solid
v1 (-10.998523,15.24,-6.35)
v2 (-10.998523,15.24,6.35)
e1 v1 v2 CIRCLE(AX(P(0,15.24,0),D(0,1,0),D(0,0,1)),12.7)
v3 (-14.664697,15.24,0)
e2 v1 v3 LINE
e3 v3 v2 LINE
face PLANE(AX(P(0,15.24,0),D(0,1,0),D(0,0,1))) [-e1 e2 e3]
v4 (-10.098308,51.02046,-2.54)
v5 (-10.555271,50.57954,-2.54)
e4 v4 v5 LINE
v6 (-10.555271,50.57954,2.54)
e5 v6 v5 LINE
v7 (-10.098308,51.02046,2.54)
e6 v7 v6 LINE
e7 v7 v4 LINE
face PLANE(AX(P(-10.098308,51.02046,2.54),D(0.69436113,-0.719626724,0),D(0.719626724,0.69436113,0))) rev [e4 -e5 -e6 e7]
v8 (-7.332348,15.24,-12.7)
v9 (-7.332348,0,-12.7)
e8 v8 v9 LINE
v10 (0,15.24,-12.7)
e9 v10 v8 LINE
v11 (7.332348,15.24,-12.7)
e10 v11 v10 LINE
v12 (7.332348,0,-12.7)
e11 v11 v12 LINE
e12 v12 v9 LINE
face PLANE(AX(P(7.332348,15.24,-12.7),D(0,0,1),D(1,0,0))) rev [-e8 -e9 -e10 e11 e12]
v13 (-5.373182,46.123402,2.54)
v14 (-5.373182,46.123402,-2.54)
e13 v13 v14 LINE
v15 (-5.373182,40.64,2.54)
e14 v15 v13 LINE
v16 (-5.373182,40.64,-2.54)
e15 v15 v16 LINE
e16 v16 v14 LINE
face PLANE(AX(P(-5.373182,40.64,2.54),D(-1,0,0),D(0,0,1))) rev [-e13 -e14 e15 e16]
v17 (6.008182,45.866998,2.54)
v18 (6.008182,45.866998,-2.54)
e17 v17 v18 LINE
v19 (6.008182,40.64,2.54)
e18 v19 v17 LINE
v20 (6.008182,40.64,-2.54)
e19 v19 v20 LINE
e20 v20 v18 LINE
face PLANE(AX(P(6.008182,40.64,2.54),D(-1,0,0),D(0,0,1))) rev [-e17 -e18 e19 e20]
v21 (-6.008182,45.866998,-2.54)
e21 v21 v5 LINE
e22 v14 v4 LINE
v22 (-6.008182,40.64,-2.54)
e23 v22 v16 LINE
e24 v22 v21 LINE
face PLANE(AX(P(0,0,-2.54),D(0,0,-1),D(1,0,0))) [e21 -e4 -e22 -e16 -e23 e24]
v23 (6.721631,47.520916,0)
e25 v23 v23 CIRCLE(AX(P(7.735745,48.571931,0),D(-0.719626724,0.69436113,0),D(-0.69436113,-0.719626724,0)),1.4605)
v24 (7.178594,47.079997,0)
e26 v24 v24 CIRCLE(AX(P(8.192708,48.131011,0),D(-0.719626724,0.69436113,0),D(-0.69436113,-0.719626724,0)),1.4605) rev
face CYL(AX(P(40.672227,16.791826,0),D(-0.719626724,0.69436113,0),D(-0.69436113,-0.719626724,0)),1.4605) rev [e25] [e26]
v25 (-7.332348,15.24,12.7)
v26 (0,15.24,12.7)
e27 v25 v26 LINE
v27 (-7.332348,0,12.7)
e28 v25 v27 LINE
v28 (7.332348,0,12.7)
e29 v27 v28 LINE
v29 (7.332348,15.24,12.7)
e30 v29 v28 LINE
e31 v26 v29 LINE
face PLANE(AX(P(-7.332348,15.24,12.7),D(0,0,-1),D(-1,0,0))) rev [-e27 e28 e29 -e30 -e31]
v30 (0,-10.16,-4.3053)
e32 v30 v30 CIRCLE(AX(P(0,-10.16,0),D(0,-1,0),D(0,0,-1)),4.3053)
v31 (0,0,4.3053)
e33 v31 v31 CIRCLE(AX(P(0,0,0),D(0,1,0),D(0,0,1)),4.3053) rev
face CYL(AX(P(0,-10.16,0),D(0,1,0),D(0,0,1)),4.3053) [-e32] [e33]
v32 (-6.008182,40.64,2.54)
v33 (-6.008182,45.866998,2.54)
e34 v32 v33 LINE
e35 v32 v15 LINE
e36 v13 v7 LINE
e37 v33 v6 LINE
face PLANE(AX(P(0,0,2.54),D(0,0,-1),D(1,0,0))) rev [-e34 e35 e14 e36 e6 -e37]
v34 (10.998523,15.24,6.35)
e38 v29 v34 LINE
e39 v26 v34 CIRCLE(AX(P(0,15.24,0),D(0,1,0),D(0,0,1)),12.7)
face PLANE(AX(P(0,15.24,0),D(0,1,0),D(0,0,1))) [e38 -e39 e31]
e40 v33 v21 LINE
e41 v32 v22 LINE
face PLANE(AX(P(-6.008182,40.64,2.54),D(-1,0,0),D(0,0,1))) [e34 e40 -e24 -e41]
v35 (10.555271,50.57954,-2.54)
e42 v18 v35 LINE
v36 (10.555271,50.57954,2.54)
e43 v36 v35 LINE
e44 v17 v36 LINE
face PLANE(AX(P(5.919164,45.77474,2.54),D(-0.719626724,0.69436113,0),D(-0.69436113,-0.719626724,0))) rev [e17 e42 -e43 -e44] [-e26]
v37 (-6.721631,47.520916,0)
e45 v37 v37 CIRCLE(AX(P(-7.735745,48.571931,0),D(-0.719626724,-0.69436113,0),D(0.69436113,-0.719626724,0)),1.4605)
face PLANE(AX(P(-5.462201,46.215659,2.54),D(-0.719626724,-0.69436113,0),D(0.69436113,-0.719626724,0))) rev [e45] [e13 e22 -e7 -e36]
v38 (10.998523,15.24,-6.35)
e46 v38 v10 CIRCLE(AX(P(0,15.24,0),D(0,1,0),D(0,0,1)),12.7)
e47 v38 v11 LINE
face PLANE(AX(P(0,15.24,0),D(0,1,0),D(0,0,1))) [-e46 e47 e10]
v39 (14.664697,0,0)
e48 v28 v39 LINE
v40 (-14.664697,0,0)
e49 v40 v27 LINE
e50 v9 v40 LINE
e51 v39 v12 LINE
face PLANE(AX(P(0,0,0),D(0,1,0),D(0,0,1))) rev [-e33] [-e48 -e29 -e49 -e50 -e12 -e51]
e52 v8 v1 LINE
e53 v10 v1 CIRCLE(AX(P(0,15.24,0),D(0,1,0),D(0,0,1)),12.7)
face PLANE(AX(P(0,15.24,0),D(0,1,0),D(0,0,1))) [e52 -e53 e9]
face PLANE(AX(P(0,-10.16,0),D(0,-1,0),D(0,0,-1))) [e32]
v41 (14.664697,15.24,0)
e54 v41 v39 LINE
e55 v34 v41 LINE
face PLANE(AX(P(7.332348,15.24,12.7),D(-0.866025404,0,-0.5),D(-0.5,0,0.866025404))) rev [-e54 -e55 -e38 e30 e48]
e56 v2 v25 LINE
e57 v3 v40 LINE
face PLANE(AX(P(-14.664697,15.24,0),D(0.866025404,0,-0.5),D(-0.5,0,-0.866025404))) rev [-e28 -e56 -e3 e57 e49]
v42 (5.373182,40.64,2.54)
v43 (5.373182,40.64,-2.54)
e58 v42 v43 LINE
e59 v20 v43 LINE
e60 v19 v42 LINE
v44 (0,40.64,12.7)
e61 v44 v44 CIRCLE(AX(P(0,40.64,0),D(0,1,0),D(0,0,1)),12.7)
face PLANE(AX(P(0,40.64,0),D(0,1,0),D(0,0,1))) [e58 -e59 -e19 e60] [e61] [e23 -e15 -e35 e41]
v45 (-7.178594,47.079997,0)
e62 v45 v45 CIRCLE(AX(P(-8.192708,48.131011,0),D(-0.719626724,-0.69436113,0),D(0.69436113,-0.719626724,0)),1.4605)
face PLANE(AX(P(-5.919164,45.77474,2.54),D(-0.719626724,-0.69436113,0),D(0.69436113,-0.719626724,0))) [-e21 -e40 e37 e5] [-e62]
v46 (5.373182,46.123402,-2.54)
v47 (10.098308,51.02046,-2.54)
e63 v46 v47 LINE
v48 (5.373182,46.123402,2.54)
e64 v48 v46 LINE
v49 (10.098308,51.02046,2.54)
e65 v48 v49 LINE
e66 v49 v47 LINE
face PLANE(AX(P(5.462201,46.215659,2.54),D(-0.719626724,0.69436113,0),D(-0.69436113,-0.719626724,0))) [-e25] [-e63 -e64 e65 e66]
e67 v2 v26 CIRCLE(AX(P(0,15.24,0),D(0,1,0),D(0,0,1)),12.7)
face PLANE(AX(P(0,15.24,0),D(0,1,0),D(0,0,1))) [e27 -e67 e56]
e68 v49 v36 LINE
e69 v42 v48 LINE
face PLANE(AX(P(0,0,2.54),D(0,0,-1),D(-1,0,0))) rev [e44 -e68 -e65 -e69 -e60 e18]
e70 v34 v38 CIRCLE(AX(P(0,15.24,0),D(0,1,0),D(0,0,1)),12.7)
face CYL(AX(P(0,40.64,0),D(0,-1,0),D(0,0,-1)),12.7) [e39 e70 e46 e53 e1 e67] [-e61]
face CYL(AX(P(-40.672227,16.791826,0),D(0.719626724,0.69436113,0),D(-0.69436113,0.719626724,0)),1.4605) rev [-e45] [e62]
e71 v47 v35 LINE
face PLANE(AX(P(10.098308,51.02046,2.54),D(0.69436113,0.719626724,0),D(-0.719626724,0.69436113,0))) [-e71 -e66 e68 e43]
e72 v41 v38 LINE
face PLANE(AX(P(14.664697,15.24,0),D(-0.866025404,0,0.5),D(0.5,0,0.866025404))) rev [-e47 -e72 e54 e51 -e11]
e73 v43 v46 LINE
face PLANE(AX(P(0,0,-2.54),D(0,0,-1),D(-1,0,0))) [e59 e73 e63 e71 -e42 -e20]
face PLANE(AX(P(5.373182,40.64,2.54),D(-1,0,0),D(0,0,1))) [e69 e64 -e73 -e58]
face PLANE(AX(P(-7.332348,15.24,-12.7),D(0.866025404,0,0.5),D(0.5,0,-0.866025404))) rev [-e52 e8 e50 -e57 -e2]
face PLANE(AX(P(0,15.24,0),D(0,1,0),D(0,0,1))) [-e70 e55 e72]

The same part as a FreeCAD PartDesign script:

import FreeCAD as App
import Part
import Sketcher
from FreeCAD import Vector
Q = App.Units.Quantity


def add_polygon(sketch, points):
    """Adds a closed chain of lines whose ends are joined by coincident constraints."""
    first, n = sketch.GeometryCount, len(points)
    for a, b in zip(points, points[1:] + points[:1]):
        sketch.addGeometry(Part.LineSegment(App.Vector(*a, 0), App.Vector(*b, 0)), False)
    for i in range(n):
        sketch.addConstraint(Sketcher.Constraint("Coincident", first + i, 2, first + (i + 1) % n, 1))

doc = App.newDocument("Part")
body = doc.addObject("PartDesign::Body", "Body")

# Sketch on XZ plane
sketch1 = doc.addObject("Sketcher::SketchObject", "Sketch")
body.addObject(sketch1)
sketch1.AttachmentSupport = (doc.XZ_Plane, [""])
sketch1.MapMode = "FlatFace"
add_polygon(sketch1, [(7.332348, -12.7), (-7.332348, -12.7), (-14.664697, 0), (-7.332348, 12.7), (7.332348, 12.7), (14.664697, 0)])  # lines 0-5
sketch1.addConstraint([
    Sketcher.Constraint("Horizontal", 0),
    Sketcher.Constraint("Horizontal", 3),
    Sketcher.Constraint("Symmetric", 0, 2, 3, 2, -1, 1),
    Sketcher.Constraint("Symmetric", 1, 2, 4, 2, -1, 1),
    Sketcher.Constraint("PointOnObject", 1, 2, -1),
    Sketcher.Constraint("Parallel", 2, 5),
    Sketcher.Constraint("Vertical", 0, 2, 2, 2),
    Sketcher.Constraint("Angle", 1, Q("120 deg")),
    Sketcher.Constraint("DistanceY", 0, 2, 2, 2, Q("1 in")),
    Sketcher.Constraint("DistanceX", 0, 2, 0, 1, 14.664697),
])
pad1 = doc.addObject("PartDesign::Pad", "Pad")
body.addObject(pad1)
pad1.Profile = sketch1
pad1.Length = Q("0.6 in")
pad1.Reversed = True

# Sketch on XZ plane
sketch2 = doc.addObject("Sketcher::SketchObject", "Sketch001")
body.addObject(sketch2)
sketch2.AttachmentSupport = (doc.XZ_Plane, [""])
sketch2.MapMode = "FlatFace"
sketch2.AttachmentOffset = App.Placement(Vector(0, 0, -0.6 * 25.4), App.Rotation())
sketch2.addGeometry(Part.Circle(Vector(0, 0, 0), Vector(0, 0, 1), 12.7), False)
sketch2.addConstraint([
    Sketcher.Constraint("Coincident", 0, 3, -1, 1),
    Sketcher.Constraint("Diameter", 0, Q("1 in")),
])
pad2 = doc.addObject("PartDesign::Pad", "Pad001")
body.addObject(pad2)
pad2.Profile = sketch2
pad2.Length = Q("1 in")
pad2.Reversed = True

# Sketch on XZ plane
sketch3 = doc.addObject("Sketcher::SketchObject", "Sketch002")
body.addObject(sketch3)
sketch3.AttachmentSupport = (doc.XZ_Plane, [""])
sketch3.MapMode = "FlatFace"
sketch3.addGeometry(Part.Circle(Vector(0, 0, 0), Vector(0, 0, 1), 4.3053), False)
sketch3.addConstraint([
    Sketcher.Constraint("Coincident", 0, 3, -1, 1),
    Sketcher.Constraint("Diameter", 0, Q("0.339 in")),
])
pad3 = doc.addObject("PartDesign::Pad", "Pad002")
body.addObject(pad3)
pad3.Profile = sketch3
pad3.Length = Q("0.4 in")

# Sketch on XY plane
sketch4 = doc.addObject("Sketcher::SketchObject", "Sketch003")
body.addObject(sketch4)
sketch4.AttachmentSupport = (doc.XY_Plane, [""])
sketch4.MapMode = "FlatFace"
add_polygon(sketch4, [(6.008182, 40.64), (6.008182, 45.866998), (10.555271, 50.57954), (10.098308, 51.02046), (5.373182, 46.123402), (5.373182, 40.64)])  # lines 0-5
sketch4.addConstraint([
    Sketcher.Constraint("Vertical", 0),
    Sketcher.Constraint("Vertical", 4),
    Sketcher.Constraint("Horizontal", 5),
    Sketcher.Constraint("Perpendicular", 1, 2),
    Sketcher.Constraint("Perpendicular", 2, 3),
    Sketcher.Constraint("DistanceY", -1, 1, 4, 2, Q("1.6 in")),
    Sketcher.Constraint("DistanceX", 5, 1, 5, 2, Q("0.025 in")),
    Sketcher.Constraint("Distance", 2, Q("0.025 in")),
    Sketcher.Constraint("DistanceY", 4, 2, 4, 1, 5.483402),
    Sketcher.Constraint("DistanceY", 0, 1, 0, 2, 5.226998),
    Sketcher.Constraint("DistanceX", -1, 1, 1, 2, 10.555271),
    Sketcher.Constraint("DistanceY", -1, 1, 1, 2, 50.57954),
])
pad4 = doc.addObject("PartDesign::Pad", "Pad003")
body.addObject(pad4)
pad4.Profile = sketch4
pad4.Length = Q("0.2 in")
pad4.Midplane = True

# Sketch on an angled plane
sketch5 = doc.addObject("Sketcher::SketchObject", "Sketch004")
body.addObject(sketch5)
sketch5.Placement = App.Placement(Vector(-20.264409, 19.55294, 0), App.Rotation(Vector(0, 0, 1), Vector(0.69436113, 0.719626724, 0), Vector(-0.719626724, 0.69436113, 0), "ZXY"))
sketch5.addGeometry(Part.Circle(Vector(0, 40.32506, 0), Vector(0, 0, 1), 1.4605), False)
sketch5.addConstraint([
    Sketcher.Constraint("PointOnObject", 0, 3, -2),
    Sketcher.Constraint("Diameter", 0, Q("0.115 in")),
    Sketcher.Constraint("DistanceY", -1, 1, 0, 3, 40.32506),
])
pocket1 = doc.addObject("PartDesign::Pocket", "Pocket")
body.addObject(pocket1)
pocket1.Profile = sketch5
pocket1.Length = Q("0.025 in")
doc.recompute()

mirrored = doc.addObject("PartDesign::Mirrored", "Mirrored")
body.addObject(mirrored)
mirrored.Originals = [pad4, pocket1]
mirrored.MirrorPlane = (doc.YZ_Plane, [""])
body.Tip = mirrored

doc.recompute()
